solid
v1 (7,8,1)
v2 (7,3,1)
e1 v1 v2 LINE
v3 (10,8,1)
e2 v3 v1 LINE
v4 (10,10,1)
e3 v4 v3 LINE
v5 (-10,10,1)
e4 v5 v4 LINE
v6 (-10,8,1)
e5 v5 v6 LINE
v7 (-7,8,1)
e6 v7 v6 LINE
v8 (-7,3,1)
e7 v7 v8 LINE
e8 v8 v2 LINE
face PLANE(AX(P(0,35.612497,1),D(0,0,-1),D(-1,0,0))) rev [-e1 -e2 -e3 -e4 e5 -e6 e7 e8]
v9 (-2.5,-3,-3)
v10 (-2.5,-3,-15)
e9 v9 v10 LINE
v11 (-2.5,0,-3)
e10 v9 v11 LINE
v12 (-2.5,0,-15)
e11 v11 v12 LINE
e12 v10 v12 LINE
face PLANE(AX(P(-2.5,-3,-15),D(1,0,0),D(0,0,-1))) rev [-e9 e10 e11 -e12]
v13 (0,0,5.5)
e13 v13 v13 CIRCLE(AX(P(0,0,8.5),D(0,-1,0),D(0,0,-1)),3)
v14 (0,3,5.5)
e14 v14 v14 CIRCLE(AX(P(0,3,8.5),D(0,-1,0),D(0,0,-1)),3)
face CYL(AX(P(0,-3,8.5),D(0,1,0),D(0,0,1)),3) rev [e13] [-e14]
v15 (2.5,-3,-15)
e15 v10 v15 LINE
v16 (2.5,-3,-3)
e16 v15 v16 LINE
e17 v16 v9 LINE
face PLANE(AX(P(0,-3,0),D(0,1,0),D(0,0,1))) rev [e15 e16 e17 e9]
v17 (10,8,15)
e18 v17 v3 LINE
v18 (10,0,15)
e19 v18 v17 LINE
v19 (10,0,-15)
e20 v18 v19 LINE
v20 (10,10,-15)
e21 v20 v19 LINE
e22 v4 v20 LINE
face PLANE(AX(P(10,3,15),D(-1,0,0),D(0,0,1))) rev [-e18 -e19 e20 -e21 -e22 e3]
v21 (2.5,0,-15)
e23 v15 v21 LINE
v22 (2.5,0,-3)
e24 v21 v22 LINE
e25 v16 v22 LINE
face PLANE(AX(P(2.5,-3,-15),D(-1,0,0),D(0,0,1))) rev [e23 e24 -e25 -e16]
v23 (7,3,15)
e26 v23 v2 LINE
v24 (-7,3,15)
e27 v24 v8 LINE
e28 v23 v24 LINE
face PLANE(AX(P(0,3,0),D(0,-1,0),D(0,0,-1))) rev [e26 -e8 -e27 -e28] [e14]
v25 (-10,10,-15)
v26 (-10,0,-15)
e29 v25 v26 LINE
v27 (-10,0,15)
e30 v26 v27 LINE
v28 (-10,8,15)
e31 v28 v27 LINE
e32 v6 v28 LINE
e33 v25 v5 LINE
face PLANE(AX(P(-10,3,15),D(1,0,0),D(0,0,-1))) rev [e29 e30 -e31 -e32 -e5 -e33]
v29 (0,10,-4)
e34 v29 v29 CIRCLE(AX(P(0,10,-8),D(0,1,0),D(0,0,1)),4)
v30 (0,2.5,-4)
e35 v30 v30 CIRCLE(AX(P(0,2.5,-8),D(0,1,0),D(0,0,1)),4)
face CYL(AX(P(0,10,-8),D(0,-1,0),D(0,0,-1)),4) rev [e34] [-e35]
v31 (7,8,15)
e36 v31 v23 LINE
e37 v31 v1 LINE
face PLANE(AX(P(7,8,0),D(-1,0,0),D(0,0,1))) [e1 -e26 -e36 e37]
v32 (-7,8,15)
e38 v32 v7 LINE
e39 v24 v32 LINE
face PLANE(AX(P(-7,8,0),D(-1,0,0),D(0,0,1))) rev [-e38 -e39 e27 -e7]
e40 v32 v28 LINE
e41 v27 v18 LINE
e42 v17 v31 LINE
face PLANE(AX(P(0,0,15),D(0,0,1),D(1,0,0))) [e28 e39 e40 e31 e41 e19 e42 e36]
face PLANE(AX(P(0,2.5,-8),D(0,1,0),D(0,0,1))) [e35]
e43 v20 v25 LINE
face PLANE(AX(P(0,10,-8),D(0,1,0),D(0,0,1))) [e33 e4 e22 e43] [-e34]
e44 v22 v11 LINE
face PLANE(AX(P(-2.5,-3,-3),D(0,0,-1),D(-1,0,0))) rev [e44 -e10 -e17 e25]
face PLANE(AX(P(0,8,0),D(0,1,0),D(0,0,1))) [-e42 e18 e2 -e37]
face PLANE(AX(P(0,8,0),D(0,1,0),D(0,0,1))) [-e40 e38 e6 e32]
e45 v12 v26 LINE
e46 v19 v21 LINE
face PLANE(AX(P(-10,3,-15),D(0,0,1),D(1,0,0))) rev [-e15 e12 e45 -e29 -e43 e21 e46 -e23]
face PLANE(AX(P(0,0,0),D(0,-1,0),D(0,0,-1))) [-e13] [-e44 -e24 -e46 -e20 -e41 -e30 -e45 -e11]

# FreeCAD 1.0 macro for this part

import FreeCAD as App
import Part
import Sketcher

V = App.Vector

doc = App.newDocument("Part")
body = doc.addObject("PartDesign::Body", "Body")

sketch1 = doc.addObject("Sketcher::SketchObject", "Sketch")
body.addObject(sketch1)
sketch1.AttachmentSupport = (doc.XZ_Plane, [""])
sketch1.MapMode = "FlatFace"
sketch1.addGeometry([
    Part.LineSegment(V(-10, -15, 0), V(-10, 15, 0)),
    Part.LineSegment(V(-10, 15, 0), V(10, 15, 0)),
    Part.LineSegment(V(10, 15, 0), V(10, -15, 0)),
    Part.LineSegment(V(10, -15, 0), V(-10, -15, 0)),
], False)
sketch1.addConstraint([
    Sketcher.Constraint("Coincident", 0, 2, 1, 1),
    Sketcher.Constraint("Coincident", 1, 2, 2, 1),
    Sketcher.Constraint("Coincident", 2, 2, 3, 1),
    Sketcher.Constraint("Coincident", 3, 2, 0, 1),
    Sketcher.Constraint("Vertical", 0),
    Sketcher.Constraint("Horizontal", 1),
    Sketcher.Constraint("Vertical", 2),
    Sketcher.Constraint("Horizontal", 3),
    Sketcher.Constraint("Symmetric", 0, 2, 2, 2, -1, 1),
    Sketcher.Constraint("DistanceX", 1, 1, 1, 2, 20.0),
    Sketcher.Constraint("DistanceY", 0, 1, 0, 2, 30.0),
])
pad1 = doc.addObject("PartDesign::Pad", "Pad")
body.addObject(pad1)
pad1.Profile = sketch1
pad1.Length = 3
pad1.Reversed = True

sketch2 = doc.addObject("Sketcher::SketchObject", "Sketch001")
body.addObject(sketch2)
sketch2.AttachmentSupport = (doc.XZ_Plane, [""])
sketch2.MapMode = "FlatFace"
sketch2.addGeometry([
    Part.LineSegment(V(-2.5, -3, 0), V(-2.5, -15, 0)),
    Part.LineSegment(V(-2.5, -15, 0), V(2.5, -15, 0)),
    Part.LineSegment(V(2.5, -15, 0), V(2.5, -3, 0)),
    Part.LineSegment(V(2.5, -3, 0), V(-2.5, -3, 0)),
], False)
sketch2.addConstraint([
    Sketcher.Constraint("Coincident", 0, 2, 1, 1),
    Sketcher.Constraint("Coincident", 1, 2, 2, 1),
    Sketcher.Constraint("Coincident", 2, 2, 3, 1),
    Sketcher.Constraint("Coincident", 3, 2, 0, 1),
    Sketcher.Constraint("Vertical", 0),
    Sketcher.Constraint("Horizontal", 1),
    Sketcher.Constraint("Vertical", 2),
    Sketcher.Constraint("Horizontal", 3),
    Sketcher.Constraint("DistanceX", 1, 1, 1, 2, 5.0),
    Sketcher.Constraint("DistanceY", 0, 2, 0, 1, 12.0),
    Sketcher.Constraint("DistanceY", 0, 2, -1, 1, 15.0),
    Sketcher.Constraint("DistanceX", 0, 2, -1, 1, 2.5),
])
pad2 = doc.addObject("PartDesign::Pad", "Pad001")
body.addObject(pad2)
pad2.Profile = sketch2
pad2.Length = 3

sketch3 = doc.addObject("Sketcher::SketchObject", "Sketch002")
body.addObject(sketch3)
sketch3.AttachmentSupport = (doc.XZ_Plane, [""])
sketch3.MapMode = "FlatFace"
sketch3.AttachmentOffset = App.Placement(V(0, 0, -3), App.Rotation())
sketch3.addGeometry([
    Part.Circle(V(0, -8, 0), V(0, 0, 1), 7),
    Part.Circle(V(0, -8, 0), V(0, 0, 1), 4),
], False)
sketch3.addConstraint([
    Sketcher.Constraint("Coincident", 1, 3, 0, 3),
    Sketcher.Constraint("PointOnObject", 0, 3, -2),
    Sketcher.Constraint("Diameter", 0, 14.0),
    Sketcher.Constraint("Diameter", 1, 8.0),
    Sketcher.Constraint("DistanceY", 0, 3, -1, 1, 8.0),
])
pad3 = doc.addObject("PartDesign::Pad", "Pad002")
body.addObject(pad3)
pad3.Profile = sketch3
pad3.Length = 7
pad3.Reversed = True

sketch4 = doc.addObject("Sketcher::SketchObject", "Sketch003")
body.addObject(sketch4)
sketch4.AttachmentSupport = (doc.XZ_Plane, [""])
sketch4.MapMode = "FlatFace"
sketch4.AttachmentOffset = App.Placement(V(0, 0, -3), App.Rotation())
sketch4.addGeometry(Part.Circle(V(0, -8, 0), V(0, 0, 1), 4), False)
sketch4.addConstraint([
    Sketcher.Constraint("PointOnObject", 0, 3, -2),
    Sketcher.Constraint("Diameter", 0, 8.0),
    Sketcher.Constraint("DistanceY", 0, 3, -1, 1, 8.0),
])
pad4 = doc.addObject("PartDesign::Pad", "Pad003")
body.addObject(pad4)
pad4.Profile = sketch4
pad4.Length = 1
pad4.Reversed = True

sketch5 = doc.addObject("Sketcher::SketchObject", "Sketch004")
body.addObject(sketch5)
sketch5.AttachmentSupport = (doc.XZ_Plane, [""])
sketch5.MapMode = "FlatFace"
sketch5.AttachmentOffset = App.Placement(V(0, 0, -3), App.Rotation())
sketch5.addGeometry(Part.Circle(V(0, 8.5, 0), V(0, 0, 1), 3), False)
sketch5.addConstraint([
    Sketcher.Constraint("PointOnObject", 0, 3, -2),
    Sketcher.Constraint("Diameter", 0, 6.0),
    Sketcher.Constraint("DistanceY", -1, 1, 0, 3, 8.5),
])
pocket1 = doc.addObject("PartDesign::Pocket", "Pocket")
body.addObject(pocket1)
pocket1.Profile = sketch5
pocket1.Type = "ThroughAll"
pocket1.Midplane = True

sketch6 = doc.addObject("Sketcher::SketchObject", "Sketch005")
body.addObject(sketch6)
sketch6.AttachmentSupport = (doc.XZ_Plane, [""])
sketch6.MapMode = "FlatFace"
sketch6.AttachmentOffset = App.Placement(V(0, 0, -3), App.Rotation())
sketch6.addGeometry([
    Part.LineSegment(V(10, -15, 0), V(-10, -15, 0)),
    Part.LineSegment(V(-10, -15, 0), V(-10, 1, 0)),
    Part.LineSegment(V(-10, 1, 0), V(10, 1, 0)),
    Part.LineSegment(V(10, 1, 0), V(10, -15, 0)),
    Part.Circle(V(0, -8, 0), V(0, 0, 1), 4),
], False)
sketch6.addConstraint([
    Sketcher.Constraint("Coincident", 0, 2, 1, 1),
    Sketcher.Constraint("Coincident", 1, 2, 2, 1),
    Sketcher.Constraint("Coincident", 2, 2, 3, 1),
    Sketcher.Constraint("Coincident", 3, 2, 0, 1),
    Sketcher.Constraint("Horizontal", 0),
    Sketcher.Constraint("Vertical", 1),
    Sketcher.Constraint("Horizontal", 2),
    Sketcher.Constraint("Vertical", 3),
    Sketcher.Constraint("PointOnObject", 4, 3, -2),
    Sketcher.Constraint("Diameter", 4, 8.0),
    Sketcher.Constraint("DistanceX", 0, 2, 0, 1, 20.0),
    Sketcher.Constraint("DistanceY", 1, 1, 1, 2, 16.0),
    Sketcher.Constraint("DistanceY", 4, 3, -1, 1, 8.0),
    Sketcher.Constraint("DistanceX", 0, 2, -1, 1, 10.0),
    Sketcher.Constraint("DistanceY", 0, 2, -1, 1, 15.0),
])
pad5 = doc.addObject("PartDesign::Pad", "Pad004")
body.addObject(pad5)
pad5.Profile = sketch6
pad5.Length = 7
pad5.Reversed = True

sketch7 = doc.addObject("Sketcher::SketchObject", "Sketch006")
body.addObject(sketch7)
sketch7.AttachmentSupport = (doc.XY_Plane, [""])
sketch7.MapMode = "FlatFace"
sketch7.AttachmentOffset = App.Placement(V(0, 0, 15), App.Rotation())
sketch7.addGeometry([
    Part.LineSegment(V(-10, 3, 0), V(-10, 0, 0)),
    Part.LineSegment(V(-10, 0, 0), V(10, 0, 0)),
    Part.LineSegment(V(10, 0, 0), V(10, 3, 0)),
    Part.LineSegment(V(10, 3, 0), V(-10, 3, 0)),
], False)
sketch7.addConstraint([
    Sketcher.Constraint("Coincident", 0, 2, 1, 1),
    Sketcher.Constraint("Coincident", 1, 2, 2, 1),
    Sketcher.Constraint("Coincident", 2, 2, 3, 1),
    Sketcher.Constraint("Coincident", 3, 2, 0, 1),
    Sketcher.Constraint("Vertical", 0),
    Sketcher.Constraint("Horizontal", 1),
    Sketcher.Constraint("Vertical", 2),
    Sketcher.Constraint("Horizontal", 3),
    Sketcher.Constraint("Symmetric", 0, 2, 1, 2, -1, 1),
    Sketcher.Constraint("DistanceX", 1, 1, 1, 2, 20.0),
    Sketcher.Constraint("DistanceY", 0, 2, 0, 1, 3.0),
])
pad6 = doc.addObject("PartDesign::Pad", "Pad005")
body.addObject(pad6)
pad6.Profile = sketch7
pad6.Length = 19
doc.recompute()

datumplane = doc.addObject("PartDesign::Plane", "DatumPlane")
body.addObject(datumplane)
datumplane.AttachmentSupport = (doc.XY_Plane, [""])
datumplane.MapMode = "FlatFace"
datumplane.AttachmentOffset = App.Placement(V(0, 0, 17), App.Rotation())
mirrored = doc.addObject("PartDesign::Mirrored", "Mirrored")
body.addObject(mirrored)
mirrored.Originals = [pad1, pad2, pad3, pad4, pad5]
mirrored.MirrorPlane = (datumplane, [""])
body.Tip = mirrored

sketch8 = doc.addObject("Sketcher::SketchObject", "Sketch007")
body.addObject(sketch8)
sketch8.AttachmentSupport = (doc.XY_Plane, [""])
sketch8.MapMode = "FlatFace"
sketch8.AttachmentOffset = App.Placement(V(0, 0, 37), App.Rotation())
sketch8.addGeometry([
    Part.LineSegment(V(2.5, 0, 0), V(2.5, -3, 0)),
    Part.LineSegment(V(2.5, -3, 0), V(-2.5, -3, 0)),
    Part.LineSegment(V(-2.5, -3, 0), V(-2.5, 0, 0)),
    Part.LineSegment(V(-2.5, 0, 0), V(2.5, 0, 0)),
], False)
sketch8.addConstraint([
    Sketcher.Constraint("Coincident", 0, 2, 1, 1),
    Sketcher.Constraint("Coincident", 1, 2, 2, 1),
    Sketcher.Constraint("Coincident", 2, 2, 3, 1),
    Sketcher.Constraint("Coincident", 3, 2, 0, 1),
    Sketcher.Constraint("Vertical", 0),
    Sketcher.Constraint("Horizontal", 1),
    Sketcher.Constraint("Vertical", 2),
    Sketcher.Constraint("Horizontal", 3),
    Sketcher.Constraint("Symmetric", 2, 2, 3, 2, -1, 1),
    Sketcher.Constraint("DistanceX", 1, 2, 1, 1, 5.0),
    Sketcher.Constraint("DistanceY", 0, 2, 0, 1, 3.0),
])
pad7 = doc.addObject("PartDesign::Pad", "Pad006")
body.addObject(pad7)
pad7.Profile = sketch8
pad7.Length = 12
pad7.Reversed = True

sketch9 = doc.addObject("Sketcher::SketchObject", "Sketch008")
body.addObject(sketch9)
sketch9.AttachmentSupport = (doc.XZ_Plane, [""])
sketch9.MapMode = "FlatFace"
sketch9.AttachmentOffset = App.Placement(V(0, 0, -2.5), App.Rotation())
sketch9.addGeometry([
    Part.Circle(V(0, -8, 0), V(0, 0, 1), 4),
    Part.Circle(V(0, 42, 0), V(0, 0, 1), 4),
], False)
sketch9.addConstraint([
    Sketcher.Constraint("Equal", 0, 1),
    Sketcher.Constraint("PointOnObject", 0, 3, -2),
    Sketcher.Constraint("PointOnObject", 1, 3, -2),
    Sketcher.Constraint("Diameter", 0, 8.0),
    Sketcher.Constraint("DistanceY", 0, 3, -1, 1, 8.0),
    Sketcher.Constraint("DistanceY", -1, 1, 1, 3, 42.0),
])
pocket2 = doc.addObject("PartDesign::Pocket", "Pocket001")
body.addObject(pocket2)
pocket2.Profile = sketch9
pocket2.Length = 1.5

sketch10 = doc.addObject("Sketcher::SketchObject", "Sketch009")
body.addObject(sketch10)
sketch10.AttachmentSupport = (doc.XZ_Plane, [""])
sketch10.MapMode = "FlatFace"
sketch10.AttachmentOffset = App.Placement(V(0, 0, -3), App.Rotation())
sketch10.addGeometry([
    Part.LineSegment(V(7, 1, 0), V(7, 33, 0)),
    Part.LineSegment(V(7, 33, 0), V(10, 33, 0)),
    Part.LineSegment(V(10, 33, 0), V(10, 1, 0)),
    Part.LineSegment(V(10, 1, 0), V(7, 1, 0)),
    Part.LineSegment(V(-10, 1, 0), V(-10, 33, 0)),
    Part.LineSegment(V(-10, 33, 0), V(-7, 33, 0)),
    Part.LineSegment(V(-7, 33, 0), V(-7, 1, 0)),
    Part.LineSegment(V(-7, 1, 0), V(-10, 1, 0)),
], False)
sketch10.addConstraint([
    Sketcher.Constraint("Coincident", 0, 2, 1, 1),
    Sketcher.Constraint("Coincident", 1, 2, 2, 1),
    Sketcher.Constraint("Coincident", 2, 2, 3, 1),
    Sketcher.Constraint("Coincident", 3, 2, 0, 1),
    Sketcher.Constraint("Coincident", 4, 2, 5, 1),
    Sketcher.Constraint("Coincident", 5, 2, 6, 1),
    Sketcher.Constraint("Coincident", 6, 2, 7, 1),
    Sketcher.Constraint("Coincident", 7, 2, 4, 1),
    Sketcher.Constraint("Vertical", 0),
    Sketcher.Constraint("Horizontal", 1),
    Sketcher.Constraint("Vertical", 2),
    Sketcher.Constraint("Horizontal", 3),
    Sketcher.Constraint("Vertical", 4),
    Sketcher.Constraint("Horizontal", 5),
    Sketcher.Constraint("Vertical", 6),
    Sketcher.Constraint("Horizontal", 7),
    Sketcher.Constraint("Symmetric", 1, 2, 4, 2, -2),
    Sketcher.Constraint("Symmetric", 3, 2, 6, 2, -2),
    Sketcher.Constraint("DistanceX", 1, 1, 1, 2, 3.0),
    Sketcher.Constraint("DistanceY", 0, 1, 0, 2, 32.0),
    Sketcher.Constraint("DistanceX", -1, 1, 0, 2, 7.0),
    Sketcher.Constraint("DistanceY", -1, 1, 0, 2, 33.0),
])
pad8 = doc.addObject("PartDesign::Pad", "Pad007")
body.addObject(pad8)
pad8.Profile = sketch10
pad8.Length = 5
pad8.Reversed = True

sketch11 = doc.addObject("Sketcher::SketchObject", "Sketch010")
body.addObject(sketch11)
sketch11.AttachmentSupport = (doc.XZ_Plane, [""])
sketch11.MapMode = "FlatFace"
sketch11.addGeometry([
    Part.LineSegment(V(-22.337595, 17, 0), V(-22.337595, 58.982823, 0)),
    Part.LineSegment(V(-22.337595, 58.982823, 0), V(21.680483, 58.982823, 0)),
    Part.LineSegment(V(21.680483, 58.982823, 0), V(21.680483, 17, 0)),
    Part.LineSegment(V(21.680483, 17, 0), V(-22.337595, 17, 0)),
], False)
sketch11.addConstraint([
    Sketcher.Constraint("Coincident", 0, 2, 1, 1),
    Sketcher.Constraint("Coincident", 1, 2, 2, 1),
    Sketcher.Constraint("Coincident", 2, 2, 3, 1),
    Sketcher.Constraint("Coincident", 3, 2, 0, 1),
    Sketcher.Constraint("Vertical", 0),
    Sketcher.Constraint("Horizontal", 1),
    Sketcher.Constraint("Vertical", 2),
    Sketcher.Constraint("Horizontal", 3),
    Sketcher.Constraint("DistanceY", -1, 1, 2, 2, 17.0),
    Sketcher.Constraint("DistanceX", 1, 1, 1, 2, 44.018078),
    Sketcher.Constraint("DistanceY", 0, 1, 0, 2, 41.982823),
    Sketcher.Constraint("DistanceX", 0, 2, -1, 1, 22.337595),
])
pocket3 = doc.addObject("PartDesign::Pocket", "Pocket002")
body.addObject(pocket3)
pocket3.Profile = sketch11
pocket3.Type = "ThroughAll"
pocket3.Midplane = True

sketch12 = doc.addObject("Sketcher::SketchObject", "Sketch011")
body.addObject(sketch12)
sketch12.AttachmentSupport = (doc.XY_Plane, [""])
sketch12.MapMode = "FlatFace"
sketch12.AttachmentOffset = App.Placement(V(0, 0, 17), App.Rotation())
sketch12.addGeometry([
    Part.LineSegment(V(10, 8, 0), V(7, 8, 0)),
    Part.LineSegment(V(7, 8, 0), V(7, 3, 0)),
    Part.LineSegment(V(7, 3, 0), V(-7, 3, 0)),
    Part.LineSegment(V(-7, 3, 0), V(-7, 8, 0)),
    Part.LineSegment(V(-7, 8, 0), V(-10, 8, 0)),
    Part.LineSegment(V(-10, 8, 0), V(-10, 0, 0)),
    Part.LineSegment(V(-10, 0, 0), V(10, 0, 0)),
    Part.LineSegment(V(10, 0, 0), V(10, 8, 0)),
], False)
sketch12.addConstraint([
    Sketcher.Constraint("Coincident", 0, 2, 1, 1),
    Sketcher.Constraint("Coincident", 1, 2, 2, 1),
    Sketcher.Constraint("Coincident", 2, 2, 3, 1),
    Sketcher.Constraint("Coincident", 3, 2, 4, 1),
    Sketcher.Constraint("Coincident", 4, 2, 5, 1),
    Sketcher.Constraint("Coincident", 5, 2, 6, 1),
    Sketcher.Constraint("Coincident", 6, 2, 7, 1),
    Sketcher.Constraint("Coincident", 7, 2, 0, 1),
    Sketcher.Constraint("Horizontal", 0),
    Sketcher.Constraint("Vertical", 1),
    Sketcher.Constraint("Horizontal", 2),
    Sketcher.Constraint("Vertical", 3),
    Sketcher.Constraint("Horizontal", 4),
    Sketcher.Constraint("Vertical", 5),
    Sketcher.Constraint("Horizontal", 6),
    Sketcher.Constraint("Vertical", 7),
    Sketcher.Constraint("Symmetric", 5, 2, 6, 2, -1, 1),
    Sketcher.Constraint("Symmetric", 0, 2, 3, 2, -2),
    Sketcher.Constraint("DistanceX", 0, 2, 0, 1, 3.0),
    Sketcher.Constraint("DistanceX", 2, 2, 2, 1, 14.0),
    Sketcher.Constraint("DistanceY", 1, 2, 1, 1, 5.0),
    Sketcher.Constraint("DistanceY", 5, 2, 5, 1, 8.0),
])
pocket4 = doc.addObject("PartDesign::Pocket", "Pocket003")
body.addObject(pocket4)
pocket4.Profile = sketch12
pocket4.Length = 2

doc.recompute()
